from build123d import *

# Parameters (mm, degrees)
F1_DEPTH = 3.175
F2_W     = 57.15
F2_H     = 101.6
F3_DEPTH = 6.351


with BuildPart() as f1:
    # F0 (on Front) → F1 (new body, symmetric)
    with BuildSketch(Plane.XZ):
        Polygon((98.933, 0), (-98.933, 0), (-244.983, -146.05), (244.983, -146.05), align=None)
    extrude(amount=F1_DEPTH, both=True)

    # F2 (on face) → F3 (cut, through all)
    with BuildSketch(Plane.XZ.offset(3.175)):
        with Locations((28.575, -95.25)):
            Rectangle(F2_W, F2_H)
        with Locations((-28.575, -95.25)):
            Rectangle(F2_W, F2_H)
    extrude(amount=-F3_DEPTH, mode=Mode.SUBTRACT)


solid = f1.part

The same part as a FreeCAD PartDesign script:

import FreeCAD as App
import Part
import Sketcher
from FreeCAD import Vector
Q = App.Units.Quantity

doc = App.newDocument("Part")
params = doc.addObject("Spreadsheet::Sheet", "Params")
for row, (alias, value) in enumerate([
    ("sketch1_width", "7.79 in"),
    ("sketch1_width2", "19.29 in"),
    ("pad1_length", "0.25 in"),
    ("sketch2_height", "4 in"),
    ("sketch2_width", "4.5 in"),
], start=1):
    params.set(f"A{row}", alias)
    params.set(f"B{row}", "=" + value)
    params.setAlias(f"B{row}", alias)

body = doc.addObject("PartDesign::Body", "Body")

# Sketch on XZ plane
sketch1 = body.newObject("Sketcher::SketchObject", "Sketch")
sketch1.AttachmentSupport = (doc.getObject("XZ_Plane"), [""])
sketch1.MapMode = "FlatFace"
sketch1.addGeometry([
    Part.LineSegment(Vector(98.933, 0, 0), Vector(-98.933, 0, 0)),
    Part.LineSegment(Vector(-98.933, 0, 0), Vector(-244.983, -146.05, 0)),
    Part.LineSegment(Vector(-244.983, -146.05, 0), Vector(244.983, -146.05, 0)),
    Part.LineSegment(Vector(244.983, -146.05, 0), Vector(98.933, 0, 0)),
], False)
sketch1.addConstraint([
    Sketcher.Constraint("Coincident", 0, 2, 1, 1),
    Sketcher.Constraint("Coincident", 1, 2, 2, 1),
    Sketcher.Constraint("Coincident", 2, 2, 3, 1),
    Sketcher.Constraint("Coincident", 3, 2, 0, 1),
    Sketcher.Constraint("Horizontal", 0),
    Sketcher.Constraint("Horizontal", 2),
    Sketcher.Constraint("Symmetric", 0, 2, 3, 2, -1, 1),
    Sketcher.Constraint("Perpendicular", 1, 3),
    Sketcher.Constraint("Equal", 1, 3),
    Sketcher.Constraint("DistanceX", 0, 2, 0, 1, Q("7.79 in")),
    Sketcher.Constraint("DistanceX", 2, 1, 2, 2, Q("19.29 in")),
])
sketch1.setExpression("Constraints[9]", "Params.sketch1_width")
sketch1.setExpression("Constraints[10]", "Params.sketch1_width2")
pad1 = body.newObject("PartDesign::Pad", "Pad")
pad1.Profile = sketch1
pad1.setExpression("Length", "Params.pad1_length")
pad1.Midplane = True

# Sketch on XZ plane
sketch2 = body.newObject("Sketcher::SketchObject", "Sketch001")
sketch2.AttachmentSupport = (doc.getObject("XZ_Plane"), [""])
sketch2.MapMode = "FlatFace"
sketch2.AttachmentOffset = App.Placement(Vector(0, 0, 0.125 * 25.4), App.Rotation())
sketch2.addGeometry([
    Part.LineSegment(Vector(57.15, -146.05, 0), Vector(57.15, -44.45, 0)),
    Part.LineSegment(Vector(57.15, -44.45, 0), Vector(-57.15, -44.45, 0)),
    Part.LineSegment(Vector(-57.15, -44.45, 0), Vector(-57.15, -146.05, 0)),
    Part.LineSegment(Vector(-57.15, -146.05, 0), Vector(57.15, -146.05, 0)),
], False)
sketch2.addConstraint([
    Sketcher.Constraint("Coincident", 0, 2, 1, 1),
    Sketcher.Constraint("Coincident", 1, 2, 2, 1),
    Sketcher.Constraint("Coincident", 2, 2, 3, 1),
    Sketcher.Constraint("Coincident", 3, 2, 0, 1),
    Sketcher.Constraint("Vertical", 0),
    Sketcher.Constraint("Horizontal", 1),
    Sketcher.Constraint("Vertical", 2),
    Sketcher.Constraint("Horizontal", 3),
    Sketcher.Constraint("DistanceY", 0, 1, 0, 2, Q("4 in")),
    Sketcher.Constraint("DistanceX", 1, 2, 1, 1, Q("4.5 in")),
    Sketcher.Constraint("DistanceX", -1, 1, 0, 2, Q("2.25 in")),
    Sketcher.Constraint("DistanceY", 0, 2, -1, 1, Q("1.75 in")),
])
sketch2.setExpression("Constraints[8]", "Params.sketch2_height")
sketch2.setExpression("Constraints[9]", "Params.sketch2_width")
pocket1 = body.newObject("PartDesign::Pocket", "Pocket")
pocket1.Profile = sketch2
pocket1.Type = "ThroughAll"

doc.recompute()
